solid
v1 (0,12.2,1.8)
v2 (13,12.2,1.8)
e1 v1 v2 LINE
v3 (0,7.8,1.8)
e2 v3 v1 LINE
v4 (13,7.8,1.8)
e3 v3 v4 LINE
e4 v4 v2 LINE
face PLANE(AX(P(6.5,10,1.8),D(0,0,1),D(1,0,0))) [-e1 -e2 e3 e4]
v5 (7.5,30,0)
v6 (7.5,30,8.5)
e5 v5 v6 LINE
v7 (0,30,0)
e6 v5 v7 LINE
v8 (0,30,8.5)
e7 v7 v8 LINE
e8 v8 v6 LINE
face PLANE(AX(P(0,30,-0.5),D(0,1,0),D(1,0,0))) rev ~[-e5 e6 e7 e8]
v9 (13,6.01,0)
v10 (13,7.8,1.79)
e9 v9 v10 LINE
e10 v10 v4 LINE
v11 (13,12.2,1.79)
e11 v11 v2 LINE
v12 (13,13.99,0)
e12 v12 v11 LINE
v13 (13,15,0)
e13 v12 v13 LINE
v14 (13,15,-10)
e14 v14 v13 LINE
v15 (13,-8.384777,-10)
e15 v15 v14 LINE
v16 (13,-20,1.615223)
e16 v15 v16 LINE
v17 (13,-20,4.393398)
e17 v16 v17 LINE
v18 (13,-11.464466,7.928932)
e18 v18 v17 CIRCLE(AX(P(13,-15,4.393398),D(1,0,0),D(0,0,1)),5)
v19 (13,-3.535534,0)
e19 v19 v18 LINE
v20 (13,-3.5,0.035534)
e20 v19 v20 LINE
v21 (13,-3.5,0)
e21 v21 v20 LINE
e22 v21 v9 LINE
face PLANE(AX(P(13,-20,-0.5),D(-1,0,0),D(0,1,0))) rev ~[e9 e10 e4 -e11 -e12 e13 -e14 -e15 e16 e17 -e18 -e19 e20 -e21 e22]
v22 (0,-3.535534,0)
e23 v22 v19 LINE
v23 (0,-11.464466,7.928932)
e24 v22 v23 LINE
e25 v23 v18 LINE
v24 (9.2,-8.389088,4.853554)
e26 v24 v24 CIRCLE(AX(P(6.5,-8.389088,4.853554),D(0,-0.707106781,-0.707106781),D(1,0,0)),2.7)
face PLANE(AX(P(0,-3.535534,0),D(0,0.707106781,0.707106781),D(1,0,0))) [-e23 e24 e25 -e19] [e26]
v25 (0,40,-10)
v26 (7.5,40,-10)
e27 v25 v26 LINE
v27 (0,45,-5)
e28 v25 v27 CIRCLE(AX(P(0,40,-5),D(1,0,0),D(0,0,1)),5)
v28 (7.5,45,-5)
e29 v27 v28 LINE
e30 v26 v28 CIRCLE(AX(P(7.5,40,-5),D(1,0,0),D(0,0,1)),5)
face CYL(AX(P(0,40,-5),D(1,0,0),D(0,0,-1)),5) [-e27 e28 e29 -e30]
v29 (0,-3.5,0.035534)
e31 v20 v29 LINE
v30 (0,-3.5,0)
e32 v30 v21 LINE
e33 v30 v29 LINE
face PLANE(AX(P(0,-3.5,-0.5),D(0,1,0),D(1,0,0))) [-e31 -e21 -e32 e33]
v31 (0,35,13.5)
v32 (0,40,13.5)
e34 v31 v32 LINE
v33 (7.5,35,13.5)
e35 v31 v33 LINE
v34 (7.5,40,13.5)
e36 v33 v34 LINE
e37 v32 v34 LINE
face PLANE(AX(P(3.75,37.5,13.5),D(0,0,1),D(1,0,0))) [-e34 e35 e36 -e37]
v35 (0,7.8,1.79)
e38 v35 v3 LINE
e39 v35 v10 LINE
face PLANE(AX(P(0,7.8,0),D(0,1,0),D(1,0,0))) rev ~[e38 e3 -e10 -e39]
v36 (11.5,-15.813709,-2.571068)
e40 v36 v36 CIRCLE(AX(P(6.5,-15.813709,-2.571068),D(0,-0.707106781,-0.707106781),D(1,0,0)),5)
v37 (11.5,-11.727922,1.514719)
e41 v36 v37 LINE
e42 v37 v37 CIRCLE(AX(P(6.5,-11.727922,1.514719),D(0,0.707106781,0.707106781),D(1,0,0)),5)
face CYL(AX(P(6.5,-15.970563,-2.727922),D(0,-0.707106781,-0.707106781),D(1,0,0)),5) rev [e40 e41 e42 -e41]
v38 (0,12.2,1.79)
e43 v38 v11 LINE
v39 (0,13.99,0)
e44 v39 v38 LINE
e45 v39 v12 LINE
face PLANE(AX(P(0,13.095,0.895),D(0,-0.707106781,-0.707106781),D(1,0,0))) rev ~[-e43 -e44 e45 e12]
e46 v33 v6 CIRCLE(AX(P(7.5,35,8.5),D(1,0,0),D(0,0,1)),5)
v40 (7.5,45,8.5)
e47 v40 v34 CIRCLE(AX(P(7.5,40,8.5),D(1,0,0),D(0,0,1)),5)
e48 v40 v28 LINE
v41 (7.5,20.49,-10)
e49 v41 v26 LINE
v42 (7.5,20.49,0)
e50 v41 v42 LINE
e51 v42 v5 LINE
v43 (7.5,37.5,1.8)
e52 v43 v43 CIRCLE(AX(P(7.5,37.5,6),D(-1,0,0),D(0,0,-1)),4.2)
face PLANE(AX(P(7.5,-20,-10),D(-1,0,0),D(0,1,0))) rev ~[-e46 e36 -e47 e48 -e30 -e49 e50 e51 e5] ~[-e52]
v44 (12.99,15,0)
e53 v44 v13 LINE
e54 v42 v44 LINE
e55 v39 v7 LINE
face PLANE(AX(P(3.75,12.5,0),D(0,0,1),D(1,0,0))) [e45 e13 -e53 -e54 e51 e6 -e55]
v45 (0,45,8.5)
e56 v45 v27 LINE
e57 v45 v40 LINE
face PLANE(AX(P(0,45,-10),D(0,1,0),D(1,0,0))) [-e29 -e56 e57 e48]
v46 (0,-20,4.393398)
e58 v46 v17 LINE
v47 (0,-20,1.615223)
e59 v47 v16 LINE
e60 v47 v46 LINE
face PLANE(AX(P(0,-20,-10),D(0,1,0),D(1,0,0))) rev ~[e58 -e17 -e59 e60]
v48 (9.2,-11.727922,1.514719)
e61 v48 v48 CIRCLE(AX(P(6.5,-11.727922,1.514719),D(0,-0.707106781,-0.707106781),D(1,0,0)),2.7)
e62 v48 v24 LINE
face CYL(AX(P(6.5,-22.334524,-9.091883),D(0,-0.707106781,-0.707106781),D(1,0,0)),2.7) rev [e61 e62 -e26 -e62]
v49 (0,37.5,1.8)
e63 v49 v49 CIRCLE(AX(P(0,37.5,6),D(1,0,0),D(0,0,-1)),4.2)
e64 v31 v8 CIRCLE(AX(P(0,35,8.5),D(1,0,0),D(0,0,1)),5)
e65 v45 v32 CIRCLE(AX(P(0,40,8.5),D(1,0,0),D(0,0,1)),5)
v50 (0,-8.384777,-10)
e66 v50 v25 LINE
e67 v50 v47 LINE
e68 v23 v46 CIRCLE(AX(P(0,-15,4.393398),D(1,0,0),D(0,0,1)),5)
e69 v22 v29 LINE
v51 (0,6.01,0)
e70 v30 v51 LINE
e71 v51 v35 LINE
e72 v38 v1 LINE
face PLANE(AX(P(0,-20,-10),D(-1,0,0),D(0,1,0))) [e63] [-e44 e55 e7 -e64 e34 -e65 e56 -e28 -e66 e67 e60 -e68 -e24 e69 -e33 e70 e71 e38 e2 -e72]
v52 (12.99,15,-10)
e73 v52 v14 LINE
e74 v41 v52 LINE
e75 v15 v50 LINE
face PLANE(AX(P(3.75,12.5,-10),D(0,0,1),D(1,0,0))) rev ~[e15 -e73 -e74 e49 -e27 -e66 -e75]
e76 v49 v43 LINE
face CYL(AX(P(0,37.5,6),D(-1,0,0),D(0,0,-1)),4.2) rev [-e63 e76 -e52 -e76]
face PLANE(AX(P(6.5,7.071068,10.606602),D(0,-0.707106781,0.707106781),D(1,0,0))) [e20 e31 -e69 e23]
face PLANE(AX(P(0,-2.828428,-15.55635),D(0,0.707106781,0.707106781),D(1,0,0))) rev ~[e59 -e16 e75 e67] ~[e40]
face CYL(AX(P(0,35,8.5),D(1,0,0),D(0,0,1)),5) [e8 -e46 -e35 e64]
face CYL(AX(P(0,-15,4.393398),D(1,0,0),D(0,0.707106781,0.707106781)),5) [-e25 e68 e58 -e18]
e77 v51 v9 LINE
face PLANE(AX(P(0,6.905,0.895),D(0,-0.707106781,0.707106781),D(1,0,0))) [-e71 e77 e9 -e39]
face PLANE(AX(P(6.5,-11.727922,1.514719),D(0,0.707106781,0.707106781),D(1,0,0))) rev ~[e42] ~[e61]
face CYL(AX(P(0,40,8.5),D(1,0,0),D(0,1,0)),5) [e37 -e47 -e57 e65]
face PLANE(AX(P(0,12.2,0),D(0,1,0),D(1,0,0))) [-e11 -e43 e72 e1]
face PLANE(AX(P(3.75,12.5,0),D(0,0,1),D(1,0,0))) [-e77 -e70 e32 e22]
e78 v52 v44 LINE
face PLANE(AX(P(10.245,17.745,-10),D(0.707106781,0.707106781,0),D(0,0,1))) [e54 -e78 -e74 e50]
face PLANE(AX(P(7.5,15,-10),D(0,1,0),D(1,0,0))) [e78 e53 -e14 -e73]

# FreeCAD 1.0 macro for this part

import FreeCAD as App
import Part
import Sketcher


def edges_at(feature, points):
    """Names of the edges that pass closest to the given points."""
    edges = feature.Shape.Edges
    near = lambda p: min(range(len(edges)), key=lambda i: edges[i].distToShape(Part.Vertex(*p))[0])
    return sorted({f"Edge{near(p) + 1}" for p in points})


def add_polygon(sketch, points):
    """Adds a closed chain of lines whose ends are joined by coincident constraints."""
    first, n = sketch.GeometryCount, len(points)
    for a, b in zip(points, points[1:] + points[:1]):
        sketch.addGeometry(Part.LineSegment(App.Vector(*a, 0), App.Vector(*b, 0)), False)
    for i in range(n):
        sketch.addConstraint(Sketcher.Constraint("Coincident", first + i, 2, first + (i + 1) % n, 1))

doc = App.newDocument("Part")
params = doc.addObject("Spreadsheet::Sheet", "Params")
for row, (alias, value) in enumerate([
    ("sketch1_width", "13 mm"),
    ("sketch1_height", "4.4 mm"),
    ("pad1_length", "1.8 mm"),
    ("sketch2_diameter", "10 mm"),
    ("pad2_length", "6 mm"),
    ("sketch3_width", "13 mm"),
    ("sketch3_height", "30 mm"),
    ("pad3_length", "50 mm"),
    ("sketch4_diameter", "5.4 mm"),
    ("pad4_length", "20 mm"),
    ("sketch5_width", "13 mm"),
    ("sketch5_height", "10 mm"),
    ("pad5_length", "10 mm"),
    ("sketch6_width", "13 mm"),
    ("sketch6_height", "30 mm"),
    ("pad6_length", "50 mm"),
    ("sketch7_width", "13 mm"),
    ("sketch7_height", "20 mm"),
    ("pad7_length", "30 mm"),
    ("sketch8_diameter", "8.4 mm"),
    ("pad8_length", "10 mm"),
    ("sketch9_height", "15 mm"),
    ("sketch9_width", "7.5 mm"),
    ("pad9_length", "14 mm"),
    ("sketch10_height", "65 mm"),
    ("sketch10_width", "7.5 mm"),
    ("pad10_length", "10 mm"),
    ("sketch11_height", "35 mm"),
    ("sketch11_width", "5.5 mm"),
    ("pad11_length", "10 mm"),
    ("fillet_radius", "5 mm"),
    ("chamfer_size", "5.49 mm"),
    ("chamfer2_size", "1.79 mm"),
], start=1):
    params.set(f"A{row}", alias)
    params.set(f"B{row}", "=" + value)
    params.setAlias(f"B{row}", alias)

body = doc.addObject("PartDesign::Body", "Body")

# Sketch on XY plane
sketch1 = body.newObject("Sketcher::SketchObject", "Sketch")
sketch1.AttachmentSupport = (doc.getObject("XY_Plane"), [""])
sketch1.MapMode = "FlatFace"
add_polygon(sketch1, [(0, 12.2), (0, 7.8), (13, 7.8), (13, 12.2)])  # lines 0-3
sketch1.addConstraint([
    Sketcher.Constraint("Vertical", 0),
    Sketcher.Constraint("Horizontal", 1),
    Sketcher.Constraint("Vertical", 2),
    Sketcher.Constraint("Horizontal", 3),
    Sketcher.Constraint("PointOnObject", 0, 2, -2),
    Sketcher.Constraint("DistanceX", 1, 1, 1, 2, 13.0),
    Sketcher.Constraint("DistanceY", 0, 2, 0, 1, 4.4),
    Sketcher.Constraint("DistanceY", -1, 1, 0, 2, 7.8),
])
sketch1.setExpression("Constraints[9]", "Params.sketch1_width")
sketch1.setExpression("Constraints[10]", "Params.sketch1_height")
pad1 = body.newObject("PartDesign::Pad", "Pad")
pad1.Profile = sketch1
pad1.setExpression("Length", "Params.pad1_length")
body2 = doc.addObject("PartDesign::Body", "Body001")

# Sketch on XY plane
sketch2 = body2.newObject("Sketcher::SketchObject", "Sketch001")
sketch2.AttachmentSupport = (doc.getObject("XY_Plane001"), [""])
sketch2.MapMode = "FlatFace"
sketch2.addGeometry(Part.Circle(App.Vector(0, 0, 0), App.Vector(0, 0, 1), 5), False)
sketch2.addConstraint([
    Sketcher.Constraint("Coincident", 0, 3, -1, 1),
    Sketcher.Constraint("Diameter", 0, 10.0),
])
sketch2.setExpression("Constraints[1]", "Params.sketch2_diameter")
pad2 = body2.newObject("PartDesign::Pad", "Pad001")
pad2.Profile = sketch2
pad2.setExpression("Length", "Params.pad2_length")
body3 = doc.addObject("PartDesign::Body", "Body002")
doc.recompute()

body2.Placement = App.Placement(App.Vector(6.5, -15.970563, -2.727922), App.Rotation(App.Vector(-1, 0, 0), 45))
boolean = body3.newObject("PartDesign::Boolean", "Boolean")
boolean.Type = "Fuse"
boolean.addObjects([body2])
body4 = doc.addObject("PartDesign::Body", "Body003")

# Sketch on XY plane
sketch3 = body4.newObject("Sketcher::SketchObject", "Sketch002")
sketch3.AttachmentSupport = (doc.getObject("XY_Plane003"), [""])
sketch3.MapMode = "FlatFace"
add_polygon(sketch3, [(0, 30), (0, 0), (13, 0), (13, 30)])  # lines 0-3
sketch3.addConstraint([
    Sketcher.Constraint("Vertical", 0),
    Sketcher.Constraint("Horizontal", 1),
    Sketcher.Constraint("Vertical", 2),
    Sketcher.Constraint("Horizontal", 3),
    Sketcher.Constraint("Coincident", 0, 2, -1, 1),
    Sketcher.Constraint("DistanceX", 1, 1, 1, 2, 13.0),
    Sketcher.Constraint("DistanceY", 0, 2, 0, 1, 30.0),
])
sketch3.setExpression("Constraints[9]", "Params.sketch3_width")
sketch3.setExpression("Constraints[10]", "Params.sketch3_height")
pad3 = body4.newObject("PartDesign::Pad", "Pad002")
pad3.Profile = sketch3
pad3.setExpression("Length", "Params.pad3_length")
body5 = doc.addObject("PartDesign::Body", "Body004")
doc.recompute()

body4.Placement = App.Placement(App.Vector(0, -24.041631, -36.769553), App.Rotation(App.Vector(1, 0, 0), 45))
boolean2 = body5.newObject("PartDesign::Boolean", "Boolean001")
boolean2.Type = "Fuse"
boolean2.addObjects([body4])
body6 = doc.addObject("PartDesign::Body", "Body005")

# Sketch on XY plane
sketch4 = body6.newObject("Sketcher::SketchObject", "Sketch003")
sketch4.AttachmentSupport = (doc.getObject("XY_Plane005"), [""])
sketch4.MapMode = "FlatFace"
sketch4.addGeometry(Part.Circle(App.Vector(0, 0, 0), App.Vector(0, 0, 1), 2.7), False)
sketch4.addConstraint([
    Sketcher.Constraint("Coincident", 0, 3, -1, 1),
    Sketcher.Constraint("Diameter", 0, 5.4),
])
sketch4.setExpression("Constraints[1]", "Params.sketch4_diameter")
pad4 = body6.newObject("PartDesign::Pad", "Pad003")
pad4.Profile = sketch4
pad4.setExpression("Length", "Params.pad4_length")
body7 = doc.addObject("PartDesign::Body", "Body006")
doc.recompute()

body6.Placement = App.Placement(App.Vector(6.5, -22.334524, -9.091883), App.Rotation(App.Vector(-1, 0, 0), 45))
boolean3 = body7.newObject("PartDesign::Boolean", "Boolean002")
boolean3.Type = "Fuse"
boolean3.addObjects([body6])
body8 = doc.addObject("PartDesign::Body", "Body007")

# Sketch on XY plane
sketch5 = body8.newObject("Sketcher::SketchObject", "Sketch004")
sketch5.AttachmentSupport = (doc.getObject("XY_Plane007"), [""])
sketch5.MapMode = "FlatFace"
sketch5.AttachmentOffset = App.Placement(App.Vector(0, 0, -0.5), App.Rotation())
add_polygon(sketch5, [(0, 6), (0, -4), (13, -4), (13, 6)])  # lines 0-3
sketch5.addConstraint([
    Sketcher.Constraint("Vertical", 0),
    Sketcher.Constraint("Horizontal", 1),
    Sketcher.Constraint("Vertical", 2),
    Sketcher.Constraint("Horizontal", 3),
    Sketcher.Constraint("PointOnObject", 0, 2, -2),
    Sketcher.Constraint("DistanceX", 1, 1, 1, 2, 13.0),
    Sketcher.Constraint("DistanceY", 0, 2, 0, 1, 10.0),
    Sketcher.Constraint("DistanceY", 0, 2, -1, 1, 3.5),
])
sketch5.setExpression("Constraints[9]", "Params.sketch5_width")
sketch5.setExpression("Constraints[10]", "Params.sketch5_height")
pad5 = body8.newObject("PartDesign::Pad", "Pad004")
pad5.Profile = sketch5
pad5.setExpression("Length", "Params.pad5_length")
body9 = doc.addObject("PartDesign::Body", "Body008")

# Sketch on XY plane
sketch6 = body9.newObject("Sketcher::SketchObject", "Sketch005")
sketch6.AttachmentSupport = (doc.getObject("XY_Plane008"), [""])
sketch6.MapMode = "FlatFace"
add_polygon(sketch6, [(0, 30), (0, 0), (13, 0), (13, 30)])  # lines 0-3
sketch6.addConstraint([
    Sketcher.Constraint("Vertical", 0),
    Sketcher.Constraint("Horizontal", 1),
    Sketcher.Constraint("Vertical", 2),
    Sketcher.Constraint("Horizontal", 3),
    Sketcher.Constraint("Coincident", 0, 2, -1, 1),
    Sketcher.Constraint("DistanceX", 1, 1, 1, 2, 13.0),
    Sketcher.Constraint("DistanceY", 0, 2, 0, 1, 30.0),
])
sketch6.setExpression("Constraints[9]", "Params.sketch6_width")
sketch6.setExpression("Constraints[10]", "Params.sketch6_height")
pad6 = body9.newObject("PartDesign::Pad", "Pad005")
pad6.Profile = sketch6
pad6.setExpression("Length", "Params.pad6_length")
body10 = doc.addObject("PartDesign::Body", "Body009")
doc.recompute()

body9.Placement = App.Placement(App.Vector(0, -3.535534, 0), App.Rotation(App.Vector(1, 0, 0), 45))
boolean4 = body10.newObject("PartDesign::Boolean", "Boolean003")
boolean4.Type = "Fuse"
boolean4.addObjects([body9])
body11 = doc.addObject("PartDesign::Body", "Body010")

# Sketch on XY plane
sketch7 = body11.newObject("Sketcher::SketchObject", "Sketch006")
sketch7.AttachmentSupport = (doc.getObject("XY_Plane010"), [""])
sketch7.MapMode = "FlatFace"
sketch7.AttachmentOffset = App.Placement(App.Vector(0, 0, -0.5), App.Rotation())
add_polygon(sketch7, [(0, 0), (0, -20), (13, -20), (13, 0)])  # lines 0-3
sketch7.addConstraint([
    Sketcher.Constraint("Vertical", 0),
    Sketcher.Constraint("Horizontal", 1),
    Sketcher.Constraint("Vertical", 2),
    Sketcher.Constraint("Horizontal", 3),
    Sketcher.Constraint("Coincident", 3, 2, -1, 1),
    Sketcher.Constraint("DistanceX", 1, 1, 1, 2, 13.0),
    Sketcher.Constraint("DistanceY", 0, 2, 0, 1, 20.0),
])
sketch7.setExpression("Constraints[9]", "Params.sketch7_width")
sketch7.setExpression("Constraints[10]", "Params.sketch7_height")
pad7 = body11.newObject("PartDesign::Pad", "Pad006")
pad7.Profile = sketch7
pad7.setExpression("Length", "Params.pad7_length")
doc.recompute()

boolean5 = body11.newObject("PartDesign::Boolean", "Boolean004")
boolean5.Type = "Cut"
boolean5.addObjects([body10])
doc.recompute()

boolean6 = body11.newObject("PartDesign::Boolean", "Boolean005")
boolean6.Type = "Cut"
boolean6.addObjects([body8])
body12 = doc.addObject("PartDesign::Body", "Body011")

# Sketch on YZ plane
sketch8 = body12.newObject("Sketcher::SketchObject", "Sketch007")
sketch8.AttachmentSupport = (doc.getObject("YZ_Plane011"), [""])
sketch8.MapMode = "FlatFace"
sketch8.addGeometry(Part.Circle(App.Vector(37.5, 6, 0), App.Vector(0, 0, 1), 4.2), False)
sketch8.addConstraint([
    Sketcher.Constraint("Diameter", 0, 8.4),
    Sketcher.Constraint("DistanceY", -1, 1, 0, 3, 6.0),
    Sketcher.Constraint("DistanceX", -1, 1, 0, 3, 37.5),
])
sketch8.setExpression("Constraints[0]", "Params.sketch8_diameter")
pad8 = body12.newObject("PartDesign::Pad", "Pad007")
pad8.Profile = sketch8
pad8.setExpression("Length", "Params.pad8_length")
body13 = doc.addObject("PartDesign::Body", "Body012")

# Sketch on XY plane
sketch9 = body13.newObject("Sketcher::SketchObject", "Sketch008")
sketch9.AttachmentSupport = (doc.getObject("XY_Plane012"), [""])
sketch9.MapMode = "FlatFace"
sketch9.AttachmentOffset = App.Placement(App.Vector(0, 0, -0.5), App.Rotation())
add_polygon(sketch9, [(0, 45), (0, 30), (8, 30), (8, 45)])  # lines 0-3
sketch9.addConstraint([
    Sketcher.Constraint("Vertical", 0),
    Sketcher.Constraint("Horizontal", 1),
    Sketcher.Constraint("Vertical", 2),
    Sketcher.Constraint("Horizontal", 3),
    Sketcher.Constraint("PointOnObject", 0, 2, -2),
    Sketcher.Constraint("DistanceY", 0, 2, 0, 1, 15.0),
    Sketcher.Constraint("DistanceX", 1, 1, 1, 2, 7.5),
    Sketcher.Constraint("DistanceY", -1, 1, 0, 2, 30.0),
])
sketch9.setExpression("Constraints[9]", "Params.sketch9_height")
sketch9.setExpression("Constraints[10]", "Params.sketch9_width")
pad9 = body13.newObject("PartDesign::Pad", "Pad008")
pad9.Profile = sketch9
pad9.setExpression("Length", "Params.pad9_length")
body14 = doc.addObject("PartDesign::Body", "Body013")

# Sketch on XY plane
sketch10 = body14.newObject("Sketcher::SketchObject", "Sketch009")
sketch10.AttachmentSupport = (doc.getObject("XY_Plane013"), [""])
sketch10.MapMode = "FlatFace"
sketch10.AttachmentOffset = App.Placement(App.Vector(0, 0, -10), App.Rotation())
add_polygon(sketch10, [(0, 45), (0, -20), (8, -20), (8, 45)])  # lines 0-3
sketch10.addConstraint([
    Sketcher.Constraint("Vertical", 0),
    Sketcher.Constraint("Horizontal", 1),
    Sketcher.Constraint("Vertical", 2),
    Sketcher.Constraint("Horizontal", 3),
    Sketcher.Constraint("PointOnObject", 0, 2, -2),
    Sketcher.Constraint("DistanceY", 0, 2, 0, 1, 65.0),
    Sketcher.Constraint("DistanceX", 1, 1, 1, 2, 7.5),
    Sketcher.Constraint("DistanceY", 0, 2, -1, 1, 20.0),
])
sketch10.setExpression("Constraints[9]", "Params.sketch10_height")
sketch10.setExpression("Constraints[10]", "Params.sketch10_width")
pad10 = body14.newObject("PartDesign::Pad", "Pad009")
pad10.Profile = sketch10
pad10.setExpression("Length", "Params.pad10_length")
doc.recompute()

boolean7 = body14.newObject("PartDesign::Boolean", "Boolean006")
boolean7.Type = "Fuse"
boolean7.addObjects([body13])
doc.recompute()

boolean8 = body14.newObject("PartDesign::Boolean", "Boolean007")
boolean8.Type = "Cut"
boolean8.addObjects([body12])
body15 = doc.addObject("PartDesign::Body", "Body014")

# Sketch on XY plane
sketch11 = body15.newObject("Sketcher::SketchObject", "Sketch010")
sketch11.AttachmentSupport = (doc.getObject("XY_Plane014"), [""])
sketch11.MapMode = "FlatFace"
sketch11.AttachmentOffset = App.Placement(App.Vector(0, 0, -10), App.Rotation())
add_polygon(sketch11, [(8, 15), (8, -20), (13, -20), (13, 15)])  # lines 0-3
sketch11.addConstraint([
    Sketcher.Constraint("Vertical", 0),
    Sketcher.Constraint("Horizontal", 1),
    Sketcher.Constraint("Vertical", 2),
    Sketcher.Constraint("Horizontal", 3),
    Sketcher.Constraint("DistanceY", 0, 2, 0, 1, 35.0),
    Sketcher.Constraint("DistanceX", 1, 1, 1, 2, 5.5),
    Sketcher.Constraint("DistanceY", 0, 2, -1, 1, 20.0),
    Sketcher.Constraint("DistanceX", -1, 1, 1, 2, 13.0),
])
sketch11.setExpression("Constraints[8]", "Params.sketch11_height")
sketch11.setExpression("Constraints[9]", "Params.sketch11_width")
pad11 = body15.newObject("PartDesign::Pad", "Pad010")
pad11.Profile = sketch11
pad11.setExpression("Length", "Params.pad11_length")
doc.recompute()

boolean9 = body15.newObject("PartDesign::Boolean", "Boolean008")
boolean9.Type = "Fuse"
boolean9.addObjects([body11])
doc.recompute()

boolean10 = body15.newObject("PartDesign::Boolean", "Boolean009")
boolean10.Type = "Fuse"
boolean10.addObjects([body14])
doc.recompute()

boolean11 = body15.newObject("PartDesign::Boolean", "Boolean010")
boolean11.Type = "Cut"
boolean11.addObjects([body7])
doc.recompute()

boolean12 = body15.newObject("PartDesign::Boolean", "Boolean011")
boolean12.Type = "Cut"
boolean12.addObjects([body5])
doc.recompute()

boolean13 = body15.newObject("PartDesign::Boolean", "Boolean012")
boolean13.Type = "Cut"
boolean13.addObjects([body3])
doc.recompute()

boolean14 = body15.newObject("PartDesign::Boolean", "Boolean013")
boolean14.Type = "Fuse"
boolean14.addObjects([body])
doc.recompute()

fillet = body15.newObject("PartDesign::Fillet", "Fillet")
fillet.Base = (boolean14, edges_at(boolean14, [
    (3.75, 45, 13.5),
    (3.75, 30, 13.5),
    (6.5, -20, 16.464),
    (3.75, 45, -10),
]))
fillet.setExpression("Radius", "Params.fillet_radius")
doc.recompute()

chamfer = body15.newObject("PartDesign::Chamfer", "Chamfer")
chamfer.Base = (fillet, edges_at(fillet, [(7.5, 15, -5)]))
chamfer.setExpression("Size", "Params.chamfer_size")
doc.recompute()

chamfer2 = body15.newObject("PartDesign::Chamfer", "Chamfer001")
chamfer2.Base = (chamfer, edges_at(chamfer, [
    (6.5, 12.2, 0),
    (6.5, 12.2, 0),
    (6.5, 7.8, 0),
    (6.5, 7.8, 0),
]))
chamfer2.setExpression("Size", "Params.chamfer2_size")

doc.recompute()
